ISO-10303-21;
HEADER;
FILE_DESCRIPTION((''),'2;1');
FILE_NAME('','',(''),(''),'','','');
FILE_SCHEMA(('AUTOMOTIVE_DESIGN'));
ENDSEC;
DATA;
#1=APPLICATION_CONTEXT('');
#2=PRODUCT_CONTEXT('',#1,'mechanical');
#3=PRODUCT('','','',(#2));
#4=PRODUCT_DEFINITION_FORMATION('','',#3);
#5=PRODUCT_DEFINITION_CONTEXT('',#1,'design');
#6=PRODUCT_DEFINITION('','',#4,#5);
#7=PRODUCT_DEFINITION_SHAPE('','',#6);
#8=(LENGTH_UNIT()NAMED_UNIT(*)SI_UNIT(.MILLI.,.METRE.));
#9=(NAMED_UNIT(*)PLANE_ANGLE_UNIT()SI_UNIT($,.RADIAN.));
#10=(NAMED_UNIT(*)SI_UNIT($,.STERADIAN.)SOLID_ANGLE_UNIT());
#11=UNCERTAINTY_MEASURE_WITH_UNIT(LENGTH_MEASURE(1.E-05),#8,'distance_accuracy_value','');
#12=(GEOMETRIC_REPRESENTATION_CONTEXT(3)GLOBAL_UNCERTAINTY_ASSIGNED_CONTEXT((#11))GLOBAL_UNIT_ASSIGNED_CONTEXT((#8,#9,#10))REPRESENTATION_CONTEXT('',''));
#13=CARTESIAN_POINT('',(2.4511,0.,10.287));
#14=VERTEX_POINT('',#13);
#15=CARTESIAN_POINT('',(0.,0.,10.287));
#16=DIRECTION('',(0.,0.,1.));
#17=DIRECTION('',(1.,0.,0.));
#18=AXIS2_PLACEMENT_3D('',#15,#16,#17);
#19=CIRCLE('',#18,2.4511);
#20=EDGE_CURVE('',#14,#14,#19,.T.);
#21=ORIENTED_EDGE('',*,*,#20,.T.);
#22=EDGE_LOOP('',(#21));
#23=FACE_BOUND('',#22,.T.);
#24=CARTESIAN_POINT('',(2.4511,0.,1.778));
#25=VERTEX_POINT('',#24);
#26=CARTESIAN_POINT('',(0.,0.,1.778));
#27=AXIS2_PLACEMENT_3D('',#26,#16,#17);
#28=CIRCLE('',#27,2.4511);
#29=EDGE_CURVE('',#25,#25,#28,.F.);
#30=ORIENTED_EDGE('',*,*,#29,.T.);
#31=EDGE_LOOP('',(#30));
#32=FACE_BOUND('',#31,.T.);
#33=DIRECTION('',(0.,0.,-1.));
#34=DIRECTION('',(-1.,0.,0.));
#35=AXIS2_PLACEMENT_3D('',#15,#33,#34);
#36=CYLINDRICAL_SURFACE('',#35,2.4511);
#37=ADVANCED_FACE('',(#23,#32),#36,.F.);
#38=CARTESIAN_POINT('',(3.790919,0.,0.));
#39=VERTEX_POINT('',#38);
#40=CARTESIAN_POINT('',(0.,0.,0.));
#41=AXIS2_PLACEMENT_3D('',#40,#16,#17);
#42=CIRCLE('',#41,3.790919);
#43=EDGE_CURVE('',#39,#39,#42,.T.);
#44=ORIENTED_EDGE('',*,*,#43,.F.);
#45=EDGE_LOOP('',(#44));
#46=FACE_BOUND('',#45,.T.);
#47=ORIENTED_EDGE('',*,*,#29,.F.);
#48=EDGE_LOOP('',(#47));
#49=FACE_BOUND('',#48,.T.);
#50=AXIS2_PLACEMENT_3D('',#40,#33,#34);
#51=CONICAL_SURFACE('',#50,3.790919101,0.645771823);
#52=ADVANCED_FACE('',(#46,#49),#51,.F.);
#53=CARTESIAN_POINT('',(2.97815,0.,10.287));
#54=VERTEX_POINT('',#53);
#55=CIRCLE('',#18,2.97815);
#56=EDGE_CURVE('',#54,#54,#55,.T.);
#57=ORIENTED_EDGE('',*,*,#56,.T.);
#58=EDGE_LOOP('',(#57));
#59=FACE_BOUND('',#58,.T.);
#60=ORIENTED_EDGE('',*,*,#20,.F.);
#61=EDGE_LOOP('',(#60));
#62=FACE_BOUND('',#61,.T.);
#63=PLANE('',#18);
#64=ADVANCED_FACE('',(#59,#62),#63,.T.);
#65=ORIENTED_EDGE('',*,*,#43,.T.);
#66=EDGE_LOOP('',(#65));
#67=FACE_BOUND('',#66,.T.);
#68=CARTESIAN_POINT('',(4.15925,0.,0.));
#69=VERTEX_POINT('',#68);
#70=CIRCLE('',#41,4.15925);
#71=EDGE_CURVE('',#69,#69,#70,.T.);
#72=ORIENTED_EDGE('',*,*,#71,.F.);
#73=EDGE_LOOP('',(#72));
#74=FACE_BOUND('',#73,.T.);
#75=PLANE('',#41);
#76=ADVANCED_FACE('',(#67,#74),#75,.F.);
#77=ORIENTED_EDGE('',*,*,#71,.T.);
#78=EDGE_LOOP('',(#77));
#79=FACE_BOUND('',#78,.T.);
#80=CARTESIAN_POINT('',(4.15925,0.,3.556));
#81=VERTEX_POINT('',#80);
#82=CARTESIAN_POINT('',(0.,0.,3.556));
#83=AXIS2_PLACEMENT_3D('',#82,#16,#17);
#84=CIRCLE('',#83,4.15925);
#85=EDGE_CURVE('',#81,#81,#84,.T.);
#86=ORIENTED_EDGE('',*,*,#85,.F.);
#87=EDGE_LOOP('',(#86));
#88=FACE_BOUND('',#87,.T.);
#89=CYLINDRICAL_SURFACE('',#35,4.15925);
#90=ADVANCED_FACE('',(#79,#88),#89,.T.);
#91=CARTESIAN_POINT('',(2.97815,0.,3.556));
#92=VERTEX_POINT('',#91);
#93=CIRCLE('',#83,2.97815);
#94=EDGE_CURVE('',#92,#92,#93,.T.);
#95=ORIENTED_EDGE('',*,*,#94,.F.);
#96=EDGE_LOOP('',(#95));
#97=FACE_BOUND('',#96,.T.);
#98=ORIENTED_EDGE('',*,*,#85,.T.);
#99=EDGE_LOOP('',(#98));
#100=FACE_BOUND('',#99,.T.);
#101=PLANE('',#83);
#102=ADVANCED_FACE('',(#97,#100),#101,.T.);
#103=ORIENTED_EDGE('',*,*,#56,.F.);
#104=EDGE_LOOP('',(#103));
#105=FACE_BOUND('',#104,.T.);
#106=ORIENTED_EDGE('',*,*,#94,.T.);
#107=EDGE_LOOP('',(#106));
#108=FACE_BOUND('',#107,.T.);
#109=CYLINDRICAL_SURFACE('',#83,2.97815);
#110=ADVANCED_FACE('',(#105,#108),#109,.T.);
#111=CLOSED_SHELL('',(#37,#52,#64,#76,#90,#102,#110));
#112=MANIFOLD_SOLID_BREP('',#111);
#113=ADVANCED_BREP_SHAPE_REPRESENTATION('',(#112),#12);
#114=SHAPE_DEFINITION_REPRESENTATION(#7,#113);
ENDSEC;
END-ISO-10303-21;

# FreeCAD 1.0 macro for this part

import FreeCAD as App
import Part
import Sketcher
Q = App.Units.Quantity


def edges_at(feature, points):
    """Names of the edges that pass closest to the given points."""
    edges = feature.Shape.Edges
    near = lambda p: min(range(len(edges)), key=lambda i: edges[i].distToShape(Part.Vertex(*p))[0])
    return sorted({f"Edge{near(p) + 1}" for p in points})

doc = App.newDocument("Part")
body = doc.addObject("PartDesign::Body", "Body")

sketch1 = doc.addObject("Sketcher::SketchObject", "Sketch")
body.addObject(sketch1)
sketch1.AttachmentSupport = (doc.XY_Plane, [""])
sketch1.MapMode = "FlatFace"
sketch1.addGeometry([
    Part.Circle(App.Vector(0, 0, 0), App.Vector(0, 0, 1), 4.15925),
    Part.Circle(App.Vector(0, 0, 0), App.Vector(0, 0, 1), 2.4511),
], False)
sketch1.addConstraint([
    Sketcher.Constraint("Coincident", 0, 3, -1, 1),
    Sketcher.Constraint("Coincident", 1, 3, -1, 1),
    Sketcher.Constraint("Diameter", 1, Q("0.193 in")),
    Sketcher.Constraint("Diameter", 0, Q("0.3275 in")),
])
pad1 = doc.addObject("PartDesign::Pad", "Pad")
body.addObject(pad1)
pad1.Profile = sketch1
pad1.Length = Q("0.405 in")

sketch2 = doc.addObject("Sketcher::SketchObject", "Sketch001")
body.addObject(sketch2)
sketch2.AttachmentSupport = (doc.XY_Plane, [""])
sketch2.MapMode = "FlatFace"
sketch2.AttachmentOffset = App.Placement(App.Vector(0, 0, 0.405 * 25.4), App.Rotation())
sketch2.addGeometry([
    Part.LineSegment(App.Vector(-6.722, 6.722, 0), App.Vector(-6.722, -6.722, 0)),
    Part.LineSegment(App.Vector(-6.722, -6.722, 0), App.Vector(6.722, -6.722, 0)),
    Part.LineSegment(App.Vector(6.722, -6.722, 0), App.Vector(6.722, 6.722, 0)),
    Part.LineSegment(App.Vector(6.722, 6.722, 0), App.Vector(-6.722, 6.722, 0)),
    Part.Circle(App.Vector(0, 0, 0), App.Vector(0, 0, 1), 2.97815),
], False)
sketch2.addConstraint([
    Sketcher.Constraint("Coincident", 0, 2, 1, 1),
    Sketcher.Constraint("Coincident", 1, 2, 2, 1),
    Sketcher.Constraint("Coincident", 2, 2, 3, 1),
    Sketcher.Constraint("Coincident", 3, 2, 0, 1),
    Sketcher.Constraint("Vertical", 0),
    Sketcher.Constraint("Horizontal", 1),
    Sketcher.Constraint("Vertical", 2),
    Sketcher.Constraint("Horizontal", 3),
    Sketcher.Constraint("Coincident", 4, 3, -1, 1),
    Sketcher.Constraint("Symmetric", 0, 2, 2, 2, -1, 1),
    Sketcher.Constraint("Equal", 3, 0),
    Sketcher.Constraint("Diameter", 4, Q("0.2345 in")),
    Sketcher.Constraint("DistanceX", 1, 1, 1, 2, 13.444),
])
pocket1 = doc.addObject("PartDesign::Pocket", "Pocket")
body.addObject(pocket1)
pocket1.Profile = sketch2
pocket1.Length = Q("0.265 in")
doc.recompute()

chamfer = doc.addObject("PartDesign::Chamfer", "Chamfer")
body.addObject(chamfer)
chamfer.Base = (pocket1, edges_at(pocket1, [(-2.451, 0, 0)]))
chamfer.ChamferType = "Two distances"
chamfer.Size = Q("0.07 in")
chamfer.Size2 = 1.339819
chamfer.FlipDirection = True

doc.recompute()
